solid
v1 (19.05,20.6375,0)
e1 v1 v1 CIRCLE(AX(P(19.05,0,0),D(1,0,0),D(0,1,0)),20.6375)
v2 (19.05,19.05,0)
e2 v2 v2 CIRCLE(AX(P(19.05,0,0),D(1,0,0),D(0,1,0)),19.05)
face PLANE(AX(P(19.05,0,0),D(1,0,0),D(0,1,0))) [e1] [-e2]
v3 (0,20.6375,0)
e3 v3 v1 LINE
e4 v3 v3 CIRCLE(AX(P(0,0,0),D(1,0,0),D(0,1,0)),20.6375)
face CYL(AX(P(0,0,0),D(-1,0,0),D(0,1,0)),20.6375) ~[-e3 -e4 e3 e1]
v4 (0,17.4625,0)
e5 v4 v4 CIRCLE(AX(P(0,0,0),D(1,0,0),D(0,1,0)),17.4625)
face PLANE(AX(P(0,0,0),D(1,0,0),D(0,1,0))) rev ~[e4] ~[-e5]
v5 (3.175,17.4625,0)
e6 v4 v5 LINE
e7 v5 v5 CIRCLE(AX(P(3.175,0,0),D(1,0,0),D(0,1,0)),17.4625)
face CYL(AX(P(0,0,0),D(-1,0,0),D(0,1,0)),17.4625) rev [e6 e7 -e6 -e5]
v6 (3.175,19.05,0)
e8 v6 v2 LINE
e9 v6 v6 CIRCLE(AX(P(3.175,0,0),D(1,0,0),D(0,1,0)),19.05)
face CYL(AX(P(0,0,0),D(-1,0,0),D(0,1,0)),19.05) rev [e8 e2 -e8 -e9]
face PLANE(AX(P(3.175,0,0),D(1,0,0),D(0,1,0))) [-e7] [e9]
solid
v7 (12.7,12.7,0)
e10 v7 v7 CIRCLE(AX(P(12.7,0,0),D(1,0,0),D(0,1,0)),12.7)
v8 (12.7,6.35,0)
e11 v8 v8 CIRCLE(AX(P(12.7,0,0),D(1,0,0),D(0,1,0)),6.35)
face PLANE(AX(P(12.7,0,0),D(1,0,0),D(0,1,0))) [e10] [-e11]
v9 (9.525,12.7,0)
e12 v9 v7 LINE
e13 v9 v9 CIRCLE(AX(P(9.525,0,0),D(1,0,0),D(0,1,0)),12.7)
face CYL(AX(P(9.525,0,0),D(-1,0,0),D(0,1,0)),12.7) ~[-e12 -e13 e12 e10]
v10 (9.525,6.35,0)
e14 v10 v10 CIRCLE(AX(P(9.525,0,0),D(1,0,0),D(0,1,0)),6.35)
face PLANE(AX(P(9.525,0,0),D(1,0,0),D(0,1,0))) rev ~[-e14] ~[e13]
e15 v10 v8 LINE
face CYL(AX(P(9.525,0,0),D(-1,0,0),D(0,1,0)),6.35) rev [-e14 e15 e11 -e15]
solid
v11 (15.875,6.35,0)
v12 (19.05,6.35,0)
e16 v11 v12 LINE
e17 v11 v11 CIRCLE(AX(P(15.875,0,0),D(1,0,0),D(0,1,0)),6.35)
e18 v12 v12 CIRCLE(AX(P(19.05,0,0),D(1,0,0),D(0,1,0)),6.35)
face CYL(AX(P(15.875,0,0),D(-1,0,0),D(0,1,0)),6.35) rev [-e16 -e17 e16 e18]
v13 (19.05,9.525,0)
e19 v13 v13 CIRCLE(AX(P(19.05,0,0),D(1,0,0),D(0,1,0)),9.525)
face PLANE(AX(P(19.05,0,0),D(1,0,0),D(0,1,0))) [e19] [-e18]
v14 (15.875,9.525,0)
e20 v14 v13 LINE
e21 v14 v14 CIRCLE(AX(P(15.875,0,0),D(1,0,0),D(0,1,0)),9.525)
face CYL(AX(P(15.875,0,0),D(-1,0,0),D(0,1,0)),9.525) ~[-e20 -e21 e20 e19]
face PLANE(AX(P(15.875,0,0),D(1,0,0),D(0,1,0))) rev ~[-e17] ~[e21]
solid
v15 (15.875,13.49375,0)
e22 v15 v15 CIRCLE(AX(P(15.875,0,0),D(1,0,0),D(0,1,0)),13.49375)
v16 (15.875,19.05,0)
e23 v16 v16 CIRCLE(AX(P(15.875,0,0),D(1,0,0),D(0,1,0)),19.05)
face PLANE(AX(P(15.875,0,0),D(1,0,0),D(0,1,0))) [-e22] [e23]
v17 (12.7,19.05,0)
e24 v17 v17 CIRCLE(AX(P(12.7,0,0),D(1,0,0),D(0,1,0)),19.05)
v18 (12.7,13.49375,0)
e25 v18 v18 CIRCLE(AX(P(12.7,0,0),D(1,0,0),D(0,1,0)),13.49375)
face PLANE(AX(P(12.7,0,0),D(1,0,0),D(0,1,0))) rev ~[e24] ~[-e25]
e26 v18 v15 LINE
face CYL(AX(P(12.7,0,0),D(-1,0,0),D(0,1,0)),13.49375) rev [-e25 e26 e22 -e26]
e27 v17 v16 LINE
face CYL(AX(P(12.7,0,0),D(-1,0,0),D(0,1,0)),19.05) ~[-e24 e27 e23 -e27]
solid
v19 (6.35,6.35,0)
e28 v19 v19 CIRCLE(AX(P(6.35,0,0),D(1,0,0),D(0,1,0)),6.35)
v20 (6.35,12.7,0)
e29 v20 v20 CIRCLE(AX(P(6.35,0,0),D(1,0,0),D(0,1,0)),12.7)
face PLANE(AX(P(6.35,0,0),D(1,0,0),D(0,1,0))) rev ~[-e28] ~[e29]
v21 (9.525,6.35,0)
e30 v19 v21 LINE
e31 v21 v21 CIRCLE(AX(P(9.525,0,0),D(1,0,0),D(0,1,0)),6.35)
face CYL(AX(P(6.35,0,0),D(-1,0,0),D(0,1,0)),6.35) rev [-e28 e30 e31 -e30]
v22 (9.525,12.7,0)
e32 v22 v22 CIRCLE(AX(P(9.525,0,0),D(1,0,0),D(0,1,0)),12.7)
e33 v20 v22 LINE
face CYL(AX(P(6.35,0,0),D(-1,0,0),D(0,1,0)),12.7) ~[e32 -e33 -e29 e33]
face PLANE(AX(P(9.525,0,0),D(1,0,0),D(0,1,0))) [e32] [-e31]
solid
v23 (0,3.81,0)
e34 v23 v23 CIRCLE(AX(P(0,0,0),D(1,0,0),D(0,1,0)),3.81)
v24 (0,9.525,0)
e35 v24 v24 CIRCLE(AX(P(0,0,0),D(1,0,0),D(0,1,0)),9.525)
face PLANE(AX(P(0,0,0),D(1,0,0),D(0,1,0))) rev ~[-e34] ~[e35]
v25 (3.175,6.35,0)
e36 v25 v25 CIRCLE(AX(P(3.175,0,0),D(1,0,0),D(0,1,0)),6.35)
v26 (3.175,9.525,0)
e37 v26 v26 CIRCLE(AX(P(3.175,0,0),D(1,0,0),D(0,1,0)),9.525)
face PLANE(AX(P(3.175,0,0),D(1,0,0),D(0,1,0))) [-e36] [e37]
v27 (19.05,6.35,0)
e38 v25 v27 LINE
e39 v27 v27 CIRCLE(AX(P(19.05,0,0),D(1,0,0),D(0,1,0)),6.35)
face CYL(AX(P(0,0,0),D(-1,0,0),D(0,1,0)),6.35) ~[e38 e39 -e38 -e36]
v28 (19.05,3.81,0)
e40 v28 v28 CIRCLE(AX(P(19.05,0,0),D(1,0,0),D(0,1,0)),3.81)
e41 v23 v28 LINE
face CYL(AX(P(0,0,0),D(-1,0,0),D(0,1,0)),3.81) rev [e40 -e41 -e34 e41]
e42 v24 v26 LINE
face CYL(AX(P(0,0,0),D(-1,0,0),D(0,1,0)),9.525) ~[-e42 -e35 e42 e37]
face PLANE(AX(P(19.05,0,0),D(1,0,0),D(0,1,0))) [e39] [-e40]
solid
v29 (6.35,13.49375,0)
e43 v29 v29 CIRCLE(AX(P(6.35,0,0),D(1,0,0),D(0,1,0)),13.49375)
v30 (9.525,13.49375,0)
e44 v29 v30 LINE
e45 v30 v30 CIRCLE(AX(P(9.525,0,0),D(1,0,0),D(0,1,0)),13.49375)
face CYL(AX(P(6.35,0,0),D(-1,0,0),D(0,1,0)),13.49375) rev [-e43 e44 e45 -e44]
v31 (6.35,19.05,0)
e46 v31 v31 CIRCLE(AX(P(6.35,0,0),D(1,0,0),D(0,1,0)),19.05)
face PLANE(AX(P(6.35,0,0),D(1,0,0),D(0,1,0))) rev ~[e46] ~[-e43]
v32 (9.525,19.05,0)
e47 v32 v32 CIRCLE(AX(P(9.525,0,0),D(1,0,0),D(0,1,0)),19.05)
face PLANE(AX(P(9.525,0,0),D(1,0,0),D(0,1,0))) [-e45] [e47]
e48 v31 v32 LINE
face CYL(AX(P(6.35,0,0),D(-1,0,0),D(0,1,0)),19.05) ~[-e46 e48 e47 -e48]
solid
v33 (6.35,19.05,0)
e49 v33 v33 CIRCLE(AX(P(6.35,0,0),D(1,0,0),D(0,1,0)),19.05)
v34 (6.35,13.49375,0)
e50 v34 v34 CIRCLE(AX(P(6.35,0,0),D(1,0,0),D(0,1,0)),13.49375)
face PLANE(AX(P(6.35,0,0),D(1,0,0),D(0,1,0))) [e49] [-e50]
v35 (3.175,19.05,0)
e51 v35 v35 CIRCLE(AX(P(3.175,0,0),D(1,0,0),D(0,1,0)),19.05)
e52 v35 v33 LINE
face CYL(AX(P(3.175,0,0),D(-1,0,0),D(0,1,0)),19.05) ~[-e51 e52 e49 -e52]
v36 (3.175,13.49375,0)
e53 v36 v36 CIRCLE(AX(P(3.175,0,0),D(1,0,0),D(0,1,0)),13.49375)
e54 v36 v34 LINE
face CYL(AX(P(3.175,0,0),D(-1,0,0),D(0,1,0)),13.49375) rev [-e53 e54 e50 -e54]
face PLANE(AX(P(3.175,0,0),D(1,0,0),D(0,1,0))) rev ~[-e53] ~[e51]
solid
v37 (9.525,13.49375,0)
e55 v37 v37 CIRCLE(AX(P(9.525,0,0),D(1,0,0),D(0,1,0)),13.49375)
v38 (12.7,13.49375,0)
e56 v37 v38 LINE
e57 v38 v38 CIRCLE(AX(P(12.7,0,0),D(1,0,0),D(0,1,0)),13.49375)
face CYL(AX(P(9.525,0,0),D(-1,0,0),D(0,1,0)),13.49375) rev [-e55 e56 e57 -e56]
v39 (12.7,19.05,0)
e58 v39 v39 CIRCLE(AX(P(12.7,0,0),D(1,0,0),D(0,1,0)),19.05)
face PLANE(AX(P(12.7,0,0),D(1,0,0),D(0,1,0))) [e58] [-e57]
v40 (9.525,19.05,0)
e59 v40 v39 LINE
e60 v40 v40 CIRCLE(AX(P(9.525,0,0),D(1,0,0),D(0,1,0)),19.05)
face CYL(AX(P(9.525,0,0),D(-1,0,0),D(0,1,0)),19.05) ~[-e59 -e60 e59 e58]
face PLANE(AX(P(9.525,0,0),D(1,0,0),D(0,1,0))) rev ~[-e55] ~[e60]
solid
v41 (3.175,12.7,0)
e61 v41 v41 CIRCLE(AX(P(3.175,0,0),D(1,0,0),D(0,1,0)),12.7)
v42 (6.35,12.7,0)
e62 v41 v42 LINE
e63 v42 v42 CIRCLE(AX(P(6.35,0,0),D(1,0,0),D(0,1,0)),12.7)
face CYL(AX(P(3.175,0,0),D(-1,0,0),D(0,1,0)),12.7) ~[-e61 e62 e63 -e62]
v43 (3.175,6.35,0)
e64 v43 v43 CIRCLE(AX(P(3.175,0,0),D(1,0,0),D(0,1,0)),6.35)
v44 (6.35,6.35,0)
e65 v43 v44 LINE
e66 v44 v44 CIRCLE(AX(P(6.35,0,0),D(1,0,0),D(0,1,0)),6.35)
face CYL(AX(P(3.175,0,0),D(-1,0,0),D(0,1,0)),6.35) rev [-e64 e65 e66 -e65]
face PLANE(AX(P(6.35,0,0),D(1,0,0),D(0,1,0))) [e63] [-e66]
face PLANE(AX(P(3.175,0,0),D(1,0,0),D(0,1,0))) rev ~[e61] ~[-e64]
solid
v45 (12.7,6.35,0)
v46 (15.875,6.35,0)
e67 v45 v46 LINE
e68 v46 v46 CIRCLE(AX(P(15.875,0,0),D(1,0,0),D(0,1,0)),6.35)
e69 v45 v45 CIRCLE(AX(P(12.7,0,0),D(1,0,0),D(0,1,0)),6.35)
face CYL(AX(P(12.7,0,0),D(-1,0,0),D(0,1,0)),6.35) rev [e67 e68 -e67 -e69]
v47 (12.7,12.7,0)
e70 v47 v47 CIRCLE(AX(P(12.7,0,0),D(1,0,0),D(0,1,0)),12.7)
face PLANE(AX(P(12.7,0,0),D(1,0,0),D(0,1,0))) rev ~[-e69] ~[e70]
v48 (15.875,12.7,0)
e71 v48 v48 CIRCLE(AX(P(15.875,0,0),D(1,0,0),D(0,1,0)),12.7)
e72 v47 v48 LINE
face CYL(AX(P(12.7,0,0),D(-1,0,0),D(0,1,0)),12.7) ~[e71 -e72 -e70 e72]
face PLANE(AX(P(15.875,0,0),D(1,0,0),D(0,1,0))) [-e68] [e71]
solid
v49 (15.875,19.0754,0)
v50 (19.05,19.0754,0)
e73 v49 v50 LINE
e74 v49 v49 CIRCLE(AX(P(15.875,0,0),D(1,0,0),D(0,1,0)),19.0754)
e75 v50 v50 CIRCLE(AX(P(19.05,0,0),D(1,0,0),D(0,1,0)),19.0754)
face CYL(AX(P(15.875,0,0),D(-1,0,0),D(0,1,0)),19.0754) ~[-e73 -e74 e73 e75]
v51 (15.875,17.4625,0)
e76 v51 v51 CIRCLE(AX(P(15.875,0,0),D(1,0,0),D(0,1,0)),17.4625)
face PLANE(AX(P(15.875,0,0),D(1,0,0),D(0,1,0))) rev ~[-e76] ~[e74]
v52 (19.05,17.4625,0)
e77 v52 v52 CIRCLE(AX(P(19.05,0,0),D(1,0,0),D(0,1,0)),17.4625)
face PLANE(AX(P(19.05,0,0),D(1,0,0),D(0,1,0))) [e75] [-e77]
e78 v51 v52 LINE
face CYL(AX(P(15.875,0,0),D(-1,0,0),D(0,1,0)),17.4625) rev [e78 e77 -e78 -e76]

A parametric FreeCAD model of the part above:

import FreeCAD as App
import Part
import Sketcher
Q = App.Units.Quantity

doc = App.newDocument("Part")
params = doc.addObject("Spreadsheet::Sheet", "Params")
for row, (alias, value) in enumerate([
    ("sketch1_diameter", "1.5 in"),
    ("sketch1_diameter2", "1.625 in"),
    ("pad1_length", "0.75 in"),
    ("sketch2_diameter", "1.5 in"),
    ("sketch2_diameter2", "1.375 in"),
    ("pad2_length", "0.125 in"),
    ("sketch3_diameter", "1.5 in"),
    ("sketch3_diameter2", "1.0625 in"),
    ("pad3_length", "0.125 in"),
    ("sketch4_diameter", "1.5 in"),
    ("sketch4_diameter2", "1.0625 in"),
    ("pad4_length", "0.125 in"),
    ("sketch5_diameter", "1.5 in"),
    ("sketch5_diameter2", "1.0625 in"),
    ("pad5_length", "0.125 in"),
    ("sketch6_diameter", "1.5 in"),
    ("sketch6_diameter2", "1.0625 in"),
    ("pad6_length", "0.125 in"),
    ("sketch7_diameter", "1.502 in"),
    ("sketch7_diameter2", "1.375 in"),
    ("pad7_length", "0.125 in"),
    ("sketch8_diameter", "0.5 in"),
    ("sketch8_diameter2", "0.75 in"),
    ("pad8_length", "0.125 in"),
    ("sketch9_diameter", "0.5 in"),
    ("sketch9_diameter2", "0.3 in"),
    ("pad9_length", "0.75 in"),
    ("sketch10_diameter", "1 in"),
    ("sketch10_diameter2", "0.5 in"),
    ("pad10_length", "0.125 in"),
    ("sketch11_diameter", "1 in"),
    ("sketch11_diameter2", "0.5 in"),
    ("pad11_length", "0.125 in"),
    ("sketch12_diameter", "1 in"),
    ("sketch12_diameter2", "0.5 in"),
    ("pad12_length", "0.125 in"),
    ("sketch13_diameter", "1 in"),
    ("sketch13_diameter2", "0.5 in"),
    ("pad13_length", "0.125 in"),
    ("sketch14_diameter", "0.5 in"),
    ("sketch14_diameter2", "0.75 in"),
    ("pad14_length", "0.125 in"),
], start=1):
    params.set(f"A{row}", alias)
    params.set(f"B{row}", "=" + value)
    params.setAlias(f"B{row}", alias)

body = doc.addObject("PartDesign::Body", "Body")

sketch1 = body.newObject("Sketcher::SketchObject", "Sketch")
sketch1.AttachmentSupport = (doc.getObject("YZ_Plane"), [""])
sketch1.MapMode = "FlatFace"
sketch1.addGeometry([
    Part.Circle(App.Vector(0, 0, 0), App.Vector(0, 0, 1), 21),
    Part.Circle(App.Vector(0, 0, 0), App.Vector(0, 0, 1), 19),
], False)
sketch1.addConstraint([
    Sketcher.Constraint("Coincident", 0, 3, -1, 1),
    Sketcher.Constraint("Coincident", 1, 3, -1, 1),
    Sketcher.Constraint("Diameter", 1, Q("1.5 in")),
    Sketcher.Constraint("Diameter", 0, Q("1.625 in")),
])
sketch1.setExpression("Constraints[2]", "Params.sketch1_diameter")
sketch1.setExpression("Constraints[3]", "Params.sketch1_diameter2")
pad1 = body.newObject("PartDesign::Pad", "Pad")
pad1.Profile = sketch1
pad1.setExpression("Length", "Params.pad1_length")

sketch2 = body.newObject("Sketcher::SketchObject", "Sketch001")
sketch2.AttachmentSupport = (doc.getObject("YZ_Plane"), [""])
sketch2.MapMode = "FlatFace"
sketch2.addGeometry([
    Part.Circle(App.Vector(0, 0, 0), App.Vector(0, 0, 1), 19),
    Part.Circle(App.Vector(0, 0, 0), App.Vector(0, 0, 1), 17),
], False)
sketch2.addConstraint([
    Sketcher.Constraint("Coincident", 0, 3, -1, 1),
    Sketcher.Constraint("Coincident", 1, 3, -1, 1),
    Sketcher.Constraint("Diameter", 0, Q("1.5 in")),
    Sketcher.Constraint("Diameter", 1, Q("1.375 in")),
])
sketch2.setExpression("Constraints[2]", "Params.sketch2_diameter")
sketch2.setExpression("Constraints[3]", "Params.sketch2_diameter2")
pad2 = body.newObject("PartDesign::Pad", "Pad001")
pad2.Profile = sketch2
pad2.setExpression("Length", "Params.pad2_length")
body2 = doc.addObject("PartDesign::Body", "Body001")

sketch3 = body2.newObject("Sketcher::SketchObject", "Sketch002")
sketch3.AttachmentSupport = (doc.getObject("YZ_Plane001"), [""])
sketch3.MapMode = "FlatFace"
sketch3.AttachmentOffset = App.Placement(App.Vector(0, 0, 0.125 * 25.4), App.Rotation())
sketch3.addGeometry([
    Part.Circle(App.Vector(0, 0, 0), App.Vector(0, 0, 1), 19),
    Part.Circle(App.Vector(0, 0, 0), App.Vector(0, 0, 1), 13),
], False)
sketch3.addConstraint([
    Sketcher.Constraint("Coincident", 0, 3, -1, 1),
    Sketcher.Constraint("Coincident", 1, 3, -1, 1),
    Sketcher.Constraint("Diameter", 0, Q("1.5 in")),
    Sketcher.Constraint("Diameter", 1, Q("1.0625 in")),
])
sketch3.setExpression("Constraints[2]", "Params.sketch3_diameter")
sketch3.setExpression("Constraints[3]", "Params.sketch3_diameter2")
pad3 = body2.newObject("PartDesign::Pad", "Pad002")
pad3.Profile = sketch3
pad3.setExpression("Length", "Params.pad3_length")
body3 = doc.addObject("PartDesign::Body", "Body002")

sketch4 = body3.newObject("Sketcher::SketchObject", "Sketch003")
sketch4.AttachmentSupport = (doc.getObject("YZ_Plane002"), [""])
sketch4.MapMode = "FlatFace"
sketch4.AttachmentOffset = App.Placement(App.Vector(0, 0, 0.375 * 25.4), App.Rotation())
sketch4.addGeometry([
    Part.Circle(App.Vector(0, 0, 0), App.Vector(0, 0, 1), 19),
    Part.Circle(App.Vector(0, 0, 0), App.Vector(0, 0, 1), 13),
], False)
sketch4.addConstraint([
    Sketcher.Constraint("Coincident", 0, 3, -1, 1),
    Sketcher.Constraint("Coincident", 1, 3, -1, 1),
    Sketcher.Constraint("Diameter", 0, Q("1.5 in")),
    Sketcher.Constraint("Diameter", 1, Q("1.0625 in")),
])
sketch4.setExpression("Constraints[2]", "Params.sketch4_diameter")
sketch4.setExpression("Constraints[3]", "Params.sketch4_diameter2")
pad4 = body3.newObject("PartDesign::Pad", "Pad003")
pad4.Profile = sketch4
pad4.setExpression("Length", "Params.pad4_length")
body4 = doc.addObject("PartDesign::Body", "Body003")

sketch5 = body4.newObject("Sketcher::SketchObject", "Sketch004")
sketch5.AttachmentSupport = (doc.getObject("YZ_Plane003"), [""])
sketch5.MapMode = "FlatFace"
sketch5.AttachmentOffset = App.Placement(App.Vector(0, 0, 0.25 * 25.4), App.Rotation())
sketch5.addGeometry([
    Part.Circle(App.Vector(0, 0, 0), App.Vector(0, 0, 1), 19),
    Part.Circle(App.Vector(0, 0, 0), App.Vector(0, 0, 1), 13),
], False)
sketch5.addConstraint([
    Sketcher.Constraint("Coincident", 0, 3, -1, 1),
    Sketcher.Constraint("Coincident", 1, 3, -1, 1),
    Sketcher.Constraint("Diameter", 0, Q("1.5 in")),
    Sketcher.Constraint("Diameter", 1, Q("1.0625 in")),
])
sketch5.setExpression("Constraints[2]", "Params.sketch5_diameter")
sketch5.setExpression("Constraints[3]", "Params.sketch5_diameter2")
pad5 = body4.newObject("PartDesign::Pad", "Pad004")
pad5.Profile = sketch5
pad5.setExpression("Length", "Params.pad5_length")
body5 = doc.addObject("PartDesign::Body", "Body004")

sketch6 = body5.newObject("Sketcher::SketchObject", "Sketch005")
sketch6.AttachmentSupport = (doc.getObject("YZ_Plane004"), [""])
sketch6.MapMode = "FlatFace"
sketch6.AttachmentOffset = App.Placement(App.Vector(0, 0, 0.5 * 25.4), App.Rotation())
sketch6.addGeometry([
    Part.Circle(App.Vector(0, 0, 0), App.Vector(0, 0, 1), 19),
    Part.Circle(App.Vector(0, 0, 0), App.Vector(0, 0, 1), 13),
], False)
sketch6.addConstraint([
    Sketcher.Constraint("Coincident", 0, 3, -1, 1),
    Sketcher.Constraint("Coincident", 1, 3, -1, 1),
    Sketcher.Constraint("Diameter", 0, Q("1.5 in")),
    Sketcher.Constraint("Diameter", 1, Q("1.0625 in")),
])
sketch6.setExpression("Constraints[2]", "Params.sketch6_diameter")
sketch6.setExpression("Constraints[3]", "Params.sketch6_diameter2")
pad6 = body5.newObject("PartDesign::Pad", "Pad005")
pad6.Profile = sketch6
pad6.setExpression("Length", "Params.pad6_length")
body6 = doc.addObject("PartDesign::Body", "Body005")

sketch7 = body6.newObject("Sketcher::SketchObject", "Sketch006")
sketch7.AttachmentSupport = (doc.getObject("YZ_Plane005"), [""])
sketch7.MapMode = "FlatFace"
sketch7.AttachmentOffset = App.Placement(App.Vector(0, 0, 0.625 * 25.4), App.Rotation())
sketch7.addGeometry([
    Part.Circle(App.Vector(0, 0, 0), App.Vector(0, 0, 1), 19),
    Part.Circle(App.Vector(0, 0, 0), App.Vector(0, 0, 1), 17),
], False)
sketch7.addConstraint([
    Sketcher.Constraint("Coincident", 0, 3, -1, 1),
    Sketcher.Constraint("Coincident", 1, 3, -1, 1),
    Sketcher.Constraint("Diameter", 0, Q("1.502 in")),
    Sketcher.Constraint("Diameter", 1, Q("1.375 in")),
])
sketch7.setExpression("Constraints[2]", "Params.sketch7_diameter")
sketch7.setExpression("Constraints[3]", "Params.sketch7_diameter2")
pad7 = body6.newObject("PartDesign::Pad", "Pad006")
pad7.Profile = sketch7
pad7.setExpression("Length", "Params.pad7_length")
body7 = doc.addObject("PartDesign::Body", "Body006")

sketch8 = body7.newObject("Sketcher::SketchObject", "Sketch007")
sketch8.AttachmentSupport = (doc.getObject("YZ_Plane006"), [""])
sketch8.MapMode = "FlatFace"
sketch8.addGeometry([
    Part.Circle(App.Vector(0, 0, 0), App.Vector(0, 0, 1), 10),
    Part.Circle(App.Vector(0, 0, 0), App.Vector(0, 0, 1), 6),
], False)
sketch8.addConstraint([
    Sketcher.Constraint("Coincident", 0, 3, -1, 1),
    Sketcher.Constraint("Coincident", 1, 3, -1, 1),
    Sketcher.Constraint("Diameter", 1, Q("0.5 in")),
    Sketcher.Constraint("Diameter", 0, Q("0.75 in")),
])
sketch8.setExpression("Constraints[2]", "Params.sketch8_diameter")
sketch8.setExpression("Constraints[3]", "Params.sketch8_diameter2")
pad8 = body7.newObject("PartDesign::Pad", "Pad007")
pad8.Profile = sketch8
pad8.setExpression("Length", "Params.pad8_length")

sketch9 = body7.newObject("Sketcher::SketchObject", "Sketch008")
sketch9.AttachmentSupport = (doc.getObject("YZ_Plane006"), [""])
sketch9.MapMode = "FlatFace"
sketch9.addGeometry([
    Part.Circle(App.Vector(0, 0, 0), App.Vector(0, 0, 1), 6.3),
    Part.Circle(App.Vector(0, 0, 0), App.Vector(0, 0, 1), 3.8),
], False)
sketch9.addConstraint([
    Sketcher.Constraint("Coincident", 0, 3, -1, 1),
    Sketcher.Constraint("Coincident", 1, 3, -1, 1),
    Sketcher.Constraint("Diameter", 0, Q("0.5 in")),
    Sketcher.Constraint("Diameter", 1, Q("0.3 in")),
])
sketch9.setExpression("Constraints[2]", "Params.sketch9_diameter")
sketch9.setExpression("Constraints[3]", "Params.sketch9_diameter2")
pad9 = body7.newObject("PartDesign::Pad", "Pad008")
pad9.Profile = sketch9
pad9.setExpression("Length", "Params.pad9_length")
body8 = doc.addObject("PartDesign::Body", "Body007")

sketch10 = body8.newObject("Sketcher::SketchObject", "Sketch009")
sketch10.AttachmentSupport = (doc.getObject("YZ_Plane007"), [""])
sketch10.MapMode = "FlatFace"
sketch10.AttachmentOffset = App.Placement(App.Vector(0, 0, 0.25 * 25.4), App.Rotation())
sketch10.addGeometry([
    Part.Circle(App.Vector(0, 0, 0), App.Vector(0, 0, 1), 13),
    Part.Circle(App.Vector(0, 0, 0), App.Vector(0, 0, 1), 6),
], False)
sketch10.addConstraint([
    Sketcher.Constraint("Coincident", 0, 3, -1, 1),
    Sketcher.Constraint("Coincident", 1, 3, -1, 1),
    Sketcher.Constraint("Diameter", 0, Q("1 in")),
    Sketcher.Constraint("Diameter", 1, Q("0.5 in")),
])
sketch10.setExpression("Constraints[2]", "Params.sketch10_diameter")
sketch10.setExpression("Constraints[3]", "Params.sketch10_diameter2")
pad10 = body8.newObject("PartDesign::Pad", "Pad009")
pad10.Profile = sketch10
pad10.setExpression("Length", "Params.pad10_length")
body9 = doc.addObject("PartDesign::Body", "Body008")

sketch11 = body9.newObject("Sketcher::SketchObject", "Sketch010")
sketch11.AttachmentSupport = (doc.getObject("YZ_Plane008"), [""])
sketch11.MapMode = "FlatFace"
sketch11.AttachmentOffset = App.Placement(App.Vector(0, 0, 0.375 * 25.4), App.Rotation())
sketch11.addGeometry([
    Part.Circle(App.Vector(0, 0, 0), App.Vector(0, 0, 1), 13),
    Part.Circle(App.Vector(0, 0, 0), App.Vector(0, 0, 1), 6),
], False)
sketch11.addConstraint([
    Sketcher.Constraint("Coincident", 0, 3, -1, 1),
    Sketcher.Constraint("Coincident", 1, 3, -1, 1),
    Sketcher.Constraint("Diameter", 0, Q("1 in")),
    Sketcher.Constraint("Diameter", 1, Q("0.5 in")),
])
sketch11.setExpression("Constraints[2]", "Params.sketch11_diameter")
sketch11.setExpression("Constraints[3]", "Params.sketch11_diameter2")
pad11 = body9.newObject("PartDesign::Pad", "Pad010")
pad11.Profile = sketch11
pad11.setExpression("Length", "Params.pad11_length")
body10 = doc.addObject("PartDesign::Body", "Body009")

sketch12 = body10.newObject("Sketcher::SketchObject", "Sketch011")
sketch12.AttachmentSupport = (doc.getObject("YZ_Plane009"), [""])
sketch12.MapMode = "FlatFace"
sketch12.AttachmentOffset = App.Placement(App.Vector(0, 0, 0.5 * 25.4), App.Rotation())
sketch12.addGeometry([
    Part.Circle(App.Vector(0, 0, 0), App.Vector(0, 0, 1), 13),
    Part.Circle(App.Vector(0, 0, 0), App.Vector(0, 0, 1), 6),
], False)
sketch12.addConstraint([
    Sketcher.Constraint("Coincident", 0, 3, -1, 1),
    Sketcher.Constraint("Coincident", 1, 3, -1, 1),
    Sketcher.Constraint("Diameter", 0, Q("1 in")),
    Sketcher.Constraint("Diameter", 1, Q("0.5 in")),
])
sketch12.setExpression("Constraints[2]", "Params.sketch12_diameter")
sketch12.setExpression("Constraints[3]", "Params.sketch12_diameter2")
pad12 = body10.newObject("PartDesign::Pad", "Pad011")
pad12.Profile = sketch12
pad12.setExpression("Length", "Params.pad12_length")
body11 = doc.addObject("PartDesign::Body", "Body010")

sketch13 = body11.newObject("Sketcher::SketchObject", "Sketch012")
sketch13.AttachmentSupport = (doc.getObject("YZ_Plane010"), [""])
sketch13.MapMode = "FlatFace"
sketch13.AttachmentOffset = App.Placement(App.Vector(0, 0, 0.125 * 25.4), App.Rotation())
sketch13.addGeometry([
    Part.Circle(App.Vector(0, 0, 0), App.Vector(0, 0, 1), 13),
    Part.Circle(App.Vector(0, 0, 0), App.Vector(0, 0, 1), 6),
], False)
sketch13.addConstraint([
    Sketcher.Constraint("Coincident", 0, 3, -1, 1),
    Sketcher.Constraint("Coincident", 1, 3, -1, 1),
    Sketcher.Constraint("Diameter", 0, Q("1 in")),
    Sketcher.Constraint("Diameter", 1, Q("0.5 in")),
])
sketch13.setExpression("Constraints[2]", "Params.sketch13_diameter")
sketch13.setExpression("Constraints[3]", "Params.sketch13_diameter2")
pad13 = body11.newObject("PartDesign::Pad", "Pad012")
pad13.Profile = sketch13
pad13.setExpression("Length", "Params.pad13_length")
body12 = doc.addObject("PartDesign::Body", "Body011")

sketch14 = body12.newObject("Sketcher::SketchObject", "Sketch013")
sketch14.AttachmentSupport = (doc.getObject("YZ_Plane011"), [""])
sketch14.MapMode = "FlatFace"
sketch14.AttachmentOffset = App.Placement(App.Vector(0, 0, 0.625 * 25.4), App.Rotation())
sketch14.addGeometry([
    Part.Circle(App.Vector(0, 0, 0), App.Vector(0, 0, 1), 10),
    Part.Circle(App.Vector(0, 0, 0), App.Vector(0, 0, 1), 6),
], False)
sketch14.addConstraint([
    Sketcher.Constraint("Coincident", 0, 3, -1, 1),
    Sketcher.Constraint("Coincident", 1, 3, -1, 1),
    Sketcher.Constraint("Diameter", 1, Q("0.5 in")),
    Sketcher.Constraint("Diameter", 0, Q("0.75 in")),
])
sketch14.setExpression("Constraints[2]", "Params.sketch14_diameter")
sketch14.setExpression("Constraints[3]", "Params.sketch14_diameter2")
pad14 = body12.newObject("PartDesign::Pad", "Pad013")
pad14.Profile = sketch14
pad14.setExpression("Length", "Params.pad14_length")

doc.recompute()
